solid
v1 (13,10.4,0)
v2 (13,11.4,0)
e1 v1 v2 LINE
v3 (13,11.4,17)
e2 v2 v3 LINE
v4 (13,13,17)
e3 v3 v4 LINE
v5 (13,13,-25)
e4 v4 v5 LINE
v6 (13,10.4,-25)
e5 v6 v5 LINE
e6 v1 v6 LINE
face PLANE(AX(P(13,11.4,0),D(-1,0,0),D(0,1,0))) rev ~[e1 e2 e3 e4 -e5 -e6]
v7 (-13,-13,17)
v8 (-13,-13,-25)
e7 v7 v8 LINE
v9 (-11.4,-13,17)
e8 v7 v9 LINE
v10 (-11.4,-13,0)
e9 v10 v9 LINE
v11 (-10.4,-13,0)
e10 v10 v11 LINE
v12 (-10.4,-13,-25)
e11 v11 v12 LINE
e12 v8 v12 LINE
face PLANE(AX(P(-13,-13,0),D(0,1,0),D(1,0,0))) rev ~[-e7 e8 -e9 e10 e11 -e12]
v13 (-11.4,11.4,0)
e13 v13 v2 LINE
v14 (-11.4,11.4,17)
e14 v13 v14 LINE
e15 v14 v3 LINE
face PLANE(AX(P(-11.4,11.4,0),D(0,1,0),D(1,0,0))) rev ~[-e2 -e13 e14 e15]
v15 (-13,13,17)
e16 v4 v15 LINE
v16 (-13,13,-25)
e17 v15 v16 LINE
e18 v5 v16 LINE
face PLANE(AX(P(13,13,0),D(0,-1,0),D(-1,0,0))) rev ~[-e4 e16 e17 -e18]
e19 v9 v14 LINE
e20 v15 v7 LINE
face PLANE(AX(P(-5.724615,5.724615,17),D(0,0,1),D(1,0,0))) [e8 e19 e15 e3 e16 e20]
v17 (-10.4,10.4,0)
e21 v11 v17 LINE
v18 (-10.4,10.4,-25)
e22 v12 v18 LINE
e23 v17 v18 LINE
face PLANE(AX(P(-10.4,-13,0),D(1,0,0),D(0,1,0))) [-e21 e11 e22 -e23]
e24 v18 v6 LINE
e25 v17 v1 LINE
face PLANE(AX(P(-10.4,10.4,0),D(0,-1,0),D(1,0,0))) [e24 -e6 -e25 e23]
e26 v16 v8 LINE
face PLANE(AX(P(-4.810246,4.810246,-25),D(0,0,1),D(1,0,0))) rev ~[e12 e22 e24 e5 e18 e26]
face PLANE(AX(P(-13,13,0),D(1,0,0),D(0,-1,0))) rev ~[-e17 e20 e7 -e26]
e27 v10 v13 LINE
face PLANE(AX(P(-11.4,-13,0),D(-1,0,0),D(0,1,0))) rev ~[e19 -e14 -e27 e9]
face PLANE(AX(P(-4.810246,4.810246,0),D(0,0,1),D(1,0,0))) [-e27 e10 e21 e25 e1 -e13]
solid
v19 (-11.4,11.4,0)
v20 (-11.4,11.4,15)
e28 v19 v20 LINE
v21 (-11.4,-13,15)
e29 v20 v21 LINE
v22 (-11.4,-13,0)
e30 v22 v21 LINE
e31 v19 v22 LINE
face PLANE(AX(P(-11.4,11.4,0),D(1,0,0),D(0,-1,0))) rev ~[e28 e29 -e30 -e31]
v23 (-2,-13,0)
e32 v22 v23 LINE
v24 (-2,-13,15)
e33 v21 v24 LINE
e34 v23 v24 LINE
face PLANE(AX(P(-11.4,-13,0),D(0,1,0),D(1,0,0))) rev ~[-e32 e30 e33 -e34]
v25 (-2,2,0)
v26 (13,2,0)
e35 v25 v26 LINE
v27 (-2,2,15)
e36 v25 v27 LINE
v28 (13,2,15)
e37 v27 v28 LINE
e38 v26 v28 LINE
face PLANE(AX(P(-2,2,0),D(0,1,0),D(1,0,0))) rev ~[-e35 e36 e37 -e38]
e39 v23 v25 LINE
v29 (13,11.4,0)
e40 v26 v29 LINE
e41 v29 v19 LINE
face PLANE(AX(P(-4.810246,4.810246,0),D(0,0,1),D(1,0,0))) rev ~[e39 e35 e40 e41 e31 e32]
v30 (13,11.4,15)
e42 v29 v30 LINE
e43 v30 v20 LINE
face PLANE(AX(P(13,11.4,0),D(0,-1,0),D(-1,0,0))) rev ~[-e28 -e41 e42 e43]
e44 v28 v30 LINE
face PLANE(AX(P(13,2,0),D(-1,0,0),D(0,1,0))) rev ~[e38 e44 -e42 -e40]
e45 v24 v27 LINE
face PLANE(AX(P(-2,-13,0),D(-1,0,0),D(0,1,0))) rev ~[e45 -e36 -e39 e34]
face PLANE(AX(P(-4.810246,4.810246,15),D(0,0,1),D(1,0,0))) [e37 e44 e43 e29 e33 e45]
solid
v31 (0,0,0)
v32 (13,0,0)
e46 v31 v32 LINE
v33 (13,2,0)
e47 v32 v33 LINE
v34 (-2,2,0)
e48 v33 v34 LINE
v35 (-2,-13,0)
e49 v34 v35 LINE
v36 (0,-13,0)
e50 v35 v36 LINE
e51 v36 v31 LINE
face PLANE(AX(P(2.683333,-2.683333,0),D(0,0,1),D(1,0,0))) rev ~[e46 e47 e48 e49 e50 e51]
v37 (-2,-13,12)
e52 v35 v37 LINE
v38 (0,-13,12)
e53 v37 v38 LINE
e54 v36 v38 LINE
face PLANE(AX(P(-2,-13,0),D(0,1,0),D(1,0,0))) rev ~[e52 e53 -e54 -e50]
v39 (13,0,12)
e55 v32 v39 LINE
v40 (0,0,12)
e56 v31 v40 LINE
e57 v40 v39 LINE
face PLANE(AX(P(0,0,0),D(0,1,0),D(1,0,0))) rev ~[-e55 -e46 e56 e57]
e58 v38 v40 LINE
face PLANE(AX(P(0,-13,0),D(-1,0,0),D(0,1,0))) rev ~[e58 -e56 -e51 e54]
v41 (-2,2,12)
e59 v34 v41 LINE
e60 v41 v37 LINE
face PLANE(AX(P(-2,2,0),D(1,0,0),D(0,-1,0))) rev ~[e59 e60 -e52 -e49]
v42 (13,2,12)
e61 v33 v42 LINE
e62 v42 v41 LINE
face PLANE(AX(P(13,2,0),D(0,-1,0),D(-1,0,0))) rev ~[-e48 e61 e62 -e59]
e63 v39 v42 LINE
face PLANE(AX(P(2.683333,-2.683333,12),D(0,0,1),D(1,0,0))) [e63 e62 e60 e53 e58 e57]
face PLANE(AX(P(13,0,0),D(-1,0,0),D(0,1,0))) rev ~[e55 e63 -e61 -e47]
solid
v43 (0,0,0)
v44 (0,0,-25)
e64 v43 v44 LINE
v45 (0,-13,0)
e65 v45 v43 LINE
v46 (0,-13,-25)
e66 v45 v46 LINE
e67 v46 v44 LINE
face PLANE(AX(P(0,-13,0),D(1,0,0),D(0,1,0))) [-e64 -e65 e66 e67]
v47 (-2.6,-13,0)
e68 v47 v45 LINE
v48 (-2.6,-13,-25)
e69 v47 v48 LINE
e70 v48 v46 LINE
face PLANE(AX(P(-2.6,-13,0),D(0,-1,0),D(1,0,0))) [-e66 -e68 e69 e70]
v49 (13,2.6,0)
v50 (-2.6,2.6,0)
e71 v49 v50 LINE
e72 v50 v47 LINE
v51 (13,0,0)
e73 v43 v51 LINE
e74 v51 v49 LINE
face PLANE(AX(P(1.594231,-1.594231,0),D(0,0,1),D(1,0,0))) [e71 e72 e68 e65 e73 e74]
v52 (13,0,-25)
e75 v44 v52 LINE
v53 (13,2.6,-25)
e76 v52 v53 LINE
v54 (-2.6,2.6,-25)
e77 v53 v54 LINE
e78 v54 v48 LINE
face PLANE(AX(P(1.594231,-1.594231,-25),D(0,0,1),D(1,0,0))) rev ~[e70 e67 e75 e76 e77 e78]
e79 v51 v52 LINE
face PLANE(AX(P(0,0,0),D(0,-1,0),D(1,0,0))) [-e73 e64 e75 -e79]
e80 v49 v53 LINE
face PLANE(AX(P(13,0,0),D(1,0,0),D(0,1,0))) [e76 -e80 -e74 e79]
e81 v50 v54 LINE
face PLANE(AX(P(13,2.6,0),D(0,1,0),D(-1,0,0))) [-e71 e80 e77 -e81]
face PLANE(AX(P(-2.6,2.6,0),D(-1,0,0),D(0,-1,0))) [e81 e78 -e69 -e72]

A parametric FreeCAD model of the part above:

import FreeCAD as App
import Part
import Sketcher
from FreeCAD import Vector


def add_polygon(sketch, points):
    """Adds a closed chain of lines whose ends are joined by coincident constraints."""
    first, n = sketch.GeometryCount, len(points)
    for a, b in zip(points, points[1:] + points[:1]):
        sketch.addGeometry(Part.LineSegment(App.Vector(*a, 0), App.Vector(*b, 0)), False)
    for i in range(n):
        sketch.addConstraint(Sketcher.Constraint("Coincident", first + i, 2, first + (i + 1) % n, 1))

doc = App.newDocument("Part")
body = doc.addObject("PartDesign::Body", "Body")
body.AllowCompound = True

sketch1 = doc.addObject("Sketcher::SketchObject", "Sketch")
body.addObject(sketch1)
sketch1.AttachmentSupport = (doc.XY_Plane, [""])
sketch1.MapMode = "FlatFace"
add_polygon(sketch1, [(-10.4, -13), (-10.4, 10.4), (13, 10.4), (13, 13), (-13, 13), (-13, -13)])
add_polygon(sketch1, [(-2.6, -13), (0, -13), (0, 0), (13, 0), (13, 2.6), (-2.6, 2.6)])
sketch1.addConstraint([
    Sketcher.Constraint("Vertical", 0),
    Sketcher.Constraint("Horizontal", 1),
    Sketcher.Constraint("Vertical", 2),
    Sketcher.Constraint("Horizontal", 3),
    Sketcher.Constraint("Vertical", 4),
    Sketcher.Constraint("Horizontal", 5),
    Sketcher.Constraint("Horizontal", 6),
    Sketcher.Constraint("Vertical", 7),
    Sketcher.Constraint("Horizontal", 8),
    Sketcher.Constraint("Vertical", 9),
    Sketcher.Constraint("Horizontal", 10),
    Sketcher.Constraint("Vertical", 11),
    Sketcher.Constraint("Coincident", 7, 2, -1, 1),
    Sketcher.Constraint("Symmetric", 2, 2, 4, 2, -1, 1),
    Sketcher.Constraint("Horizontal", 5, 2, 6, 2),
    Sketcher.Constraint("Vertical", 2, 2, 8, 2),
    Sketcher.Constraint("Equal", 5, 6),
    Sketcher.Constraint("Equal", 1, 0),
    Sketcher.Constraint("Equal", 6, 2),
    Sketcher.Constraint("Equal", 2, 9),
    Sketcher.Constraint("DistanceX", 3, 2, 3, 1, 26.0),
    Sketcher.Constraint("DistanceX", 1, 1, 1, 2, 23.4),
])
pad1 = doc.addObject("PartDesign::Pad", "Pad")
body.addObject(pad1)
pad1.Profile = sketch1
pad1.Length = 25
pad1.Reversed = True

sketch2 = doc.addObject("Sketcher::SketchObject", "Sketch001")
body.addObject(sketch2)
sketch2.AttachmentSupport = (doc.XY_Plane, [""])
sketch2.MapMode = "FlatFace"
add_polygon(sketch2, [(-13, -13), (-11.4, -13), (-11.4, 11.4), (13, 11.4), (13, 13), (-13, 13)])
sketch2.addConstraint([
    Sketcher.Constraint("Horizontal", 0),
    Sketcher.Constraint("Vertical", 1),
    Sketcher.Constraint("Horizontal", 2),
    Sketcher.Constraint("Vertical", 3),
    Sketcher.Constraint("Horizontal", 4),
    Sketcher.Constraint("Vertical", 5),
    Sketcher.Constraint("Symmetric", 3, 2, 5, 2, -1, 1),
    Sketcher.Constraint("Equal", 2, 1),
    Sketcher.Constraint("Equal", 0, 3),
    Sketcher.Constraint("DistanceX", 4, 2, 4, 1, 26.0),
    Sketcher.Constraint("DistanceX", 0, 1, 0, 2, 1.6),
])
pad2 = doc.addObject("PartDesign::Pad", "Pad001")
body.addObject(pad2)
pad2.Profile = sketch2
pad2.Length = 17
body2 = doc.addObject("PartDesign::Body", "Body001")

sketch3 = doc.addObject("Sketcher::SketchObject", "Sketch002")
body2.addObject(sketch3)
sketch3.AttachmentSupport = (doc.getObject("XY_Plane001"), [""])
sketch3.MapMode = "FlatFace"
add_polygon(sketch3, [(-11, -13), (-2, -13), (-2, 2), (13, 2), (13, 11), (-11, 11)])
sketch3.addConstraint([
    Sketcher.Constraint("Horizontal", 0),
    Sketcher.Constraint("Vertical", 1),
    Sketcher.Constraint("Horizontal", 2),
    Sketcher.Constraint("Vertical", 3),
    Sketcher.Constraint("Horizontal", 4),
    Sketcher.Constraint("Vertical", 5),
    Sketcher.Constraint("Equal", 2, 1),
    Sketcher.Constraint("Equal", 0, 3),
    Sketcher.Constraint("DistanceX", 2, 1, 2, 2, 15.0),
    Sketcher.Constraint("DistanceX", 0, 1, 0, 2, 9.4),
    Sketcher.Constraint("DistanceX", 0, 2, -1, 1, 2.0),
    Sketcher.Constraint("DistanceY", 0, 2, -1, 1, 13.0),
])
pad3 = doc.addObject("PartDesign::Pad", "Pad002")
body2.addObject(pad3)
pad3.Profile = sketch3
pad3.Length = 15
body3 = doc.addObject("PartDesign::Body", "Body002")

sketch4 = doc.addObject("Sketcher::SketchObject", "Sketch003")
body3.addObject(sketch4)
sketch4.AttachmentSupport = (doc.getObject("XY_Plane002"), [""])
sketch4.MapMode = "FlatFace"
add_polygon(sketch4, [(-2, -13), (0, -13), (0, 0), (13, 0), (13, 2), (-2, 2)])
sketch4.addConstraint([
    Sketcher.Constraint("Horizontal", 0),
    Sketcher.Constraint("Vertical", 1),
    Sketcher.Constraint("Horizontal", 2),
    Sketcher.Constraint("Vertical", 3),
    Sketcher.Constraint("Horizontal", 4),
    Sketcher.Constraint("Vertical", 5),
    Sketcher.Constraint("Coincident", 1, 2, -1, 1),
    Sketcher.Constraint("Equal", 2, 1),
    Sketcher.Constraint("Equal", 0, 3),
    Sketcher.Constraint("DistanceX", 0, 1, 0, 2, 2.0),
    Sketcher.Constraint("DistanceX", 2, 1, 2, 2, 13.0),
])
pad4 = doc.addObject("PartDesign::Pad", "Pad003")
body3.addObject(pad4)
pad4.Profile = sketch4
pad4.Length = 12

doc.recompute()
